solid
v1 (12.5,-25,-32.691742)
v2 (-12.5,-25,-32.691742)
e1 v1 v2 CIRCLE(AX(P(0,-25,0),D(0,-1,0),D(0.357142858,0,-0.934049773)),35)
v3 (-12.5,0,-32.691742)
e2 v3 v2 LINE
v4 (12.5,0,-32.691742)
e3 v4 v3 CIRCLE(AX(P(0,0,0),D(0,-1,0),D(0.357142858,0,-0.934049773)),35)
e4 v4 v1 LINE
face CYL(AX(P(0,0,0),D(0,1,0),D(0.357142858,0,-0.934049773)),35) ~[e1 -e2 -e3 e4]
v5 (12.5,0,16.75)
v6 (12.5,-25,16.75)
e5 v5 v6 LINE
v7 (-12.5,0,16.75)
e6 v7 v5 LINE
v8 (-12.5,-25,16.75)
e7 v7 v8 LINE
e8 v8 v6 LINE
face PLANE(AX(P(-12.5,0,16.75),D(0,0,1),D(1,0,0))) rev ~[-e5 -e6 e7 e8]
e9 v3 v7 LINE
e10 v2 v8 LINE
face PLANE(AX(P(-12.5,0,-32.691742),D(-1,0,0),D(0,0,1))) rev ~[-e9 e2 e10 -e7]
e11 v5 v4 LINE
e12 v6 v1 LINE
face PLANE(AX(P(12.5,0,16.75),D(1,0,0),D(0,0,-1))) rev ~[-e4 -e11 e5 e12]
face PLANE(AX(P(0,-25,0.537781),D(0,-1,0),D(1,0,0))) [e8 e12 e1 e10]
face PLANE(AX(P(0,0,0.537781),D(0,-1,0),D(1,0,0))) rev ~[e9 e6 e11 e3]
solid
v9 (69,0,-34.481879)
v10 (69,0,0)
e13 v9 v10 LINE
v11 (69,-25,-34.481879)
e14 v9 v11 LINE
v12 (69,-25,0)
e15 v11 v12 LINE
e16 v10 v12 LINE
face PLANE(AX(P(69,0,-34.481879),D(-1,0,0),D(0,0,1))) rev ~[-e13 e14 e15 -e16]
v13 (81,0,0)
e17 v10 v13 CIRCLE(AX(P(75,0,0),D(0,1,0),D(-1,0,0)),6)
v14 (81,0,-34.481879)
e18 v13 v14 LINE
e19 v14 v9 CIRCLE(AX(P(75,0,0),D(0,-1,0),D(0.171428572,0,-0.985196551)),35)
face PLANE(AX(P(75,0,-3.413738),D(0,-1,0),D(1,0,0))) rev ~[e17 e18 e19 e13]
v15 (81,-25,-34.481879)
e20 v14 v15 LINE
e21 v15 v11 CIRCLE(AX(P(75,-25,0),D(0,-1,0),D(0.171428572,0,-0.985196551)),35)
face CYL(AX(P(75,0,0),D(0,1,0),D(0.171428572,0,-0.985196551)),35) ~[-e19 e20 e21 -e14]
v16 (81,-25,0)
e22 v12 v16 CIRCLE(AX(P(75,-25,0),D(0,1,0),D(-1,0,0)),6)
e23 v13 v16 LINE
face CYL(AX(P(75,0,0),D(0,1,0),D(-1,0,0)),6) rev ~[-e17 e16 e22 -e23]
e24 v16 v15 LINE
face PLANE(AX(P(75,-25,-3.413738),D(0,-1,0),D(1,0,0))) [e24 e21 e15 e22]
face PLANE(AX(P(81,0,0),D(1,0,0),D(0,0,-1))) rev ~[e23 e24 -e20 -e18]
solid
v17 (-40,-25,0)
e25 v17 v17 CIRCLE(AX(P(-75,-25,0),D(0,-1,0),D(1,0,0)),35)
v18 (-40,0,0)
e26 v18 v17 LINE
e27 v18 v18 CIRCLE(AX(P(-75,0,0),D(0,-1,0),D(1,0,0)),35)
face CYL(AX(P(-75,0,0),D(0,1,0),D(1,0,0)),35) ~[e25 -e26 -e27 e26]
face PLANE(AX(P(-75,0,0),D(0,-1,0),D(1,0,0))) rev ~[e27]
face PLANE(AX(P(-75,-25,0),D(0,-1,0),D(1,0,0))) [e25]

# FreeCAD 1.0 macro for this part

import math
import FreeCAD as App
import Part
import Sketcher
Q = App.Units.Quantity

doc = App.newDocument("Part")
params = doc.addObject("Spreadsheet::Sheet", "Params")
for row, (alias, value) in enumerate([
    ("sketch1_diameter", "70 mm"),
    ("sketch1_radius", "6 mm"),
    ("sketch1_width", "25 mm"),
    ("pad1_length", "25 mm"),
], start=1):
    params.set(f"A{row}", alias)
    params.set(f"B{row}", "=" + value)
    params.setAlias(f"B{row}", alias)

body = doc.addObject("PartDesign::Body", "Body")
body.AllowCompound = True

# Sketch on XZ plane
sketch1 = body.newObject("Sketcher::SketchObject", "Sketch")
sketch1.AttachmentSupport = (doc.getObject("XZ_Plane"), [""])
sketch1.MapMode = "FlatFace"
sketch1.addGeometry([
    Part.Circle(App.Vector(-75, 0, 0), App.Vector(0, 0, 1), 35),  # 0
    Part.LineSegment(App.Vector(81, 0, 0), App.Vector(81, -34, 0)),  # 1
    Part.ArcOfCircle(Part.Circle(App.Vector(75, 0, 0), App.Vector(0, 0, 1), 35), math.radians(-80), math.radians(260)),  # 2
    Part.LineSegment(App.Vector(69, -34, 0), App.Vector(69, 0, 0)),  # 3
    Part.ArcOfCircle(Part.Circle(App.Vector(75, 0, 0), App.Vector(0, 0, 1), 6), math.radians(0), math.radians(180)),  # 4
    Part.ArcOfCircle(Part.Circle(App.Vector(0, 0, 0), App.Vector(0, 0, 1), 35), math.radians(-69), math.radians(249)),  # 5
    Part.LineSegment(App.Vector(-12, -33, 0), App.Vector(-12, 17, 0)),  # 6
    Part.LineSegment(App.Vector(-12, 17, 0), App.Vector(12, 17, 0)),  # 7
    Part.LineSegment(App.Vector(12, 17, 0), App.Vector(12, -33, 0)),  # 8
], False)
sketch1.addConstraint([
    Sketcher.Constraint("Coincident", 1, 2, 2, 1),
    Sketcher.Constraint("Coincident", 2, 2, 3, 1),
    Sketcher.Constraint("Tangent", 3, 2, 4, 2),
    Sketcher.Constraint("Tangent", 4, 1, 1, 1),
    Sketcher.Constraint("Coincident", 5, 2, 6, 1),
    Sketcher.Constraint("Coincident", 6, 2, 7, 1),
    Sketcher.Constraint("Coincident", 7, 2, 8, 1),
    Sketcher.Constraint("Coincident", 8, 2, 5, 1),
    Sketcher.Constraint("Vertical", 1),
    Sketcher.Constraint("Vertical", 3),
    Sketcher.Constraint("Vertical", 6),
    Sketcher.Constraint("Horizontal", 7),
    Sketcher.Constraint("Vertical", 8),
    Sketcher.Constraint("Coincident", 5, 3, -1, 1),
    Sketcher.Constraint("Coincident", 4, 3, 2, 3),
    Sketcher.Constraint("Equal", 0, 2),
    Sketcher.Constraint("Equal", 2, 5),
    Sketcher.Constraint("Symmetric", 0, 3, 2, 3, -1, 1),
    Sketcher.Constraint("PointOnObject", 0, 3, -1),
    Sketcher.Constraint("Horizontal", 5, 2, 8, 2),
    Sketcher.Constraint("Diameter", 0, Q("70 mm")),
    Sketcher.Constraint("Radius", 4, Q("6 mm")),
    Sketcher.Constraint("DistanceX", 7, 1, 7, 2, Q("25 mm")),
    Sketcher.Constraint("DistanceX", 0, 3, -1, 1, Q("75 mm")),
    Sketcher.Constraint("DistanceY", -1, 1, 6, 2, Q("16.75 mm")),
])
sketch1.setExpression("Constraints[20]", "Params.sketch1_diameter")
sketch1.setExpression("Constraints[21]", "Params.sketch1_radius")
sketch1.setExpression("Constraints[22]", "Params.sketch1_width")
pad1 = body.newObject("PartDesign::Pad", "Pad")
pad1.Profile = sketch1
pad1.setExpression("Length", "Params.pad1_length")

doc.recompute()
